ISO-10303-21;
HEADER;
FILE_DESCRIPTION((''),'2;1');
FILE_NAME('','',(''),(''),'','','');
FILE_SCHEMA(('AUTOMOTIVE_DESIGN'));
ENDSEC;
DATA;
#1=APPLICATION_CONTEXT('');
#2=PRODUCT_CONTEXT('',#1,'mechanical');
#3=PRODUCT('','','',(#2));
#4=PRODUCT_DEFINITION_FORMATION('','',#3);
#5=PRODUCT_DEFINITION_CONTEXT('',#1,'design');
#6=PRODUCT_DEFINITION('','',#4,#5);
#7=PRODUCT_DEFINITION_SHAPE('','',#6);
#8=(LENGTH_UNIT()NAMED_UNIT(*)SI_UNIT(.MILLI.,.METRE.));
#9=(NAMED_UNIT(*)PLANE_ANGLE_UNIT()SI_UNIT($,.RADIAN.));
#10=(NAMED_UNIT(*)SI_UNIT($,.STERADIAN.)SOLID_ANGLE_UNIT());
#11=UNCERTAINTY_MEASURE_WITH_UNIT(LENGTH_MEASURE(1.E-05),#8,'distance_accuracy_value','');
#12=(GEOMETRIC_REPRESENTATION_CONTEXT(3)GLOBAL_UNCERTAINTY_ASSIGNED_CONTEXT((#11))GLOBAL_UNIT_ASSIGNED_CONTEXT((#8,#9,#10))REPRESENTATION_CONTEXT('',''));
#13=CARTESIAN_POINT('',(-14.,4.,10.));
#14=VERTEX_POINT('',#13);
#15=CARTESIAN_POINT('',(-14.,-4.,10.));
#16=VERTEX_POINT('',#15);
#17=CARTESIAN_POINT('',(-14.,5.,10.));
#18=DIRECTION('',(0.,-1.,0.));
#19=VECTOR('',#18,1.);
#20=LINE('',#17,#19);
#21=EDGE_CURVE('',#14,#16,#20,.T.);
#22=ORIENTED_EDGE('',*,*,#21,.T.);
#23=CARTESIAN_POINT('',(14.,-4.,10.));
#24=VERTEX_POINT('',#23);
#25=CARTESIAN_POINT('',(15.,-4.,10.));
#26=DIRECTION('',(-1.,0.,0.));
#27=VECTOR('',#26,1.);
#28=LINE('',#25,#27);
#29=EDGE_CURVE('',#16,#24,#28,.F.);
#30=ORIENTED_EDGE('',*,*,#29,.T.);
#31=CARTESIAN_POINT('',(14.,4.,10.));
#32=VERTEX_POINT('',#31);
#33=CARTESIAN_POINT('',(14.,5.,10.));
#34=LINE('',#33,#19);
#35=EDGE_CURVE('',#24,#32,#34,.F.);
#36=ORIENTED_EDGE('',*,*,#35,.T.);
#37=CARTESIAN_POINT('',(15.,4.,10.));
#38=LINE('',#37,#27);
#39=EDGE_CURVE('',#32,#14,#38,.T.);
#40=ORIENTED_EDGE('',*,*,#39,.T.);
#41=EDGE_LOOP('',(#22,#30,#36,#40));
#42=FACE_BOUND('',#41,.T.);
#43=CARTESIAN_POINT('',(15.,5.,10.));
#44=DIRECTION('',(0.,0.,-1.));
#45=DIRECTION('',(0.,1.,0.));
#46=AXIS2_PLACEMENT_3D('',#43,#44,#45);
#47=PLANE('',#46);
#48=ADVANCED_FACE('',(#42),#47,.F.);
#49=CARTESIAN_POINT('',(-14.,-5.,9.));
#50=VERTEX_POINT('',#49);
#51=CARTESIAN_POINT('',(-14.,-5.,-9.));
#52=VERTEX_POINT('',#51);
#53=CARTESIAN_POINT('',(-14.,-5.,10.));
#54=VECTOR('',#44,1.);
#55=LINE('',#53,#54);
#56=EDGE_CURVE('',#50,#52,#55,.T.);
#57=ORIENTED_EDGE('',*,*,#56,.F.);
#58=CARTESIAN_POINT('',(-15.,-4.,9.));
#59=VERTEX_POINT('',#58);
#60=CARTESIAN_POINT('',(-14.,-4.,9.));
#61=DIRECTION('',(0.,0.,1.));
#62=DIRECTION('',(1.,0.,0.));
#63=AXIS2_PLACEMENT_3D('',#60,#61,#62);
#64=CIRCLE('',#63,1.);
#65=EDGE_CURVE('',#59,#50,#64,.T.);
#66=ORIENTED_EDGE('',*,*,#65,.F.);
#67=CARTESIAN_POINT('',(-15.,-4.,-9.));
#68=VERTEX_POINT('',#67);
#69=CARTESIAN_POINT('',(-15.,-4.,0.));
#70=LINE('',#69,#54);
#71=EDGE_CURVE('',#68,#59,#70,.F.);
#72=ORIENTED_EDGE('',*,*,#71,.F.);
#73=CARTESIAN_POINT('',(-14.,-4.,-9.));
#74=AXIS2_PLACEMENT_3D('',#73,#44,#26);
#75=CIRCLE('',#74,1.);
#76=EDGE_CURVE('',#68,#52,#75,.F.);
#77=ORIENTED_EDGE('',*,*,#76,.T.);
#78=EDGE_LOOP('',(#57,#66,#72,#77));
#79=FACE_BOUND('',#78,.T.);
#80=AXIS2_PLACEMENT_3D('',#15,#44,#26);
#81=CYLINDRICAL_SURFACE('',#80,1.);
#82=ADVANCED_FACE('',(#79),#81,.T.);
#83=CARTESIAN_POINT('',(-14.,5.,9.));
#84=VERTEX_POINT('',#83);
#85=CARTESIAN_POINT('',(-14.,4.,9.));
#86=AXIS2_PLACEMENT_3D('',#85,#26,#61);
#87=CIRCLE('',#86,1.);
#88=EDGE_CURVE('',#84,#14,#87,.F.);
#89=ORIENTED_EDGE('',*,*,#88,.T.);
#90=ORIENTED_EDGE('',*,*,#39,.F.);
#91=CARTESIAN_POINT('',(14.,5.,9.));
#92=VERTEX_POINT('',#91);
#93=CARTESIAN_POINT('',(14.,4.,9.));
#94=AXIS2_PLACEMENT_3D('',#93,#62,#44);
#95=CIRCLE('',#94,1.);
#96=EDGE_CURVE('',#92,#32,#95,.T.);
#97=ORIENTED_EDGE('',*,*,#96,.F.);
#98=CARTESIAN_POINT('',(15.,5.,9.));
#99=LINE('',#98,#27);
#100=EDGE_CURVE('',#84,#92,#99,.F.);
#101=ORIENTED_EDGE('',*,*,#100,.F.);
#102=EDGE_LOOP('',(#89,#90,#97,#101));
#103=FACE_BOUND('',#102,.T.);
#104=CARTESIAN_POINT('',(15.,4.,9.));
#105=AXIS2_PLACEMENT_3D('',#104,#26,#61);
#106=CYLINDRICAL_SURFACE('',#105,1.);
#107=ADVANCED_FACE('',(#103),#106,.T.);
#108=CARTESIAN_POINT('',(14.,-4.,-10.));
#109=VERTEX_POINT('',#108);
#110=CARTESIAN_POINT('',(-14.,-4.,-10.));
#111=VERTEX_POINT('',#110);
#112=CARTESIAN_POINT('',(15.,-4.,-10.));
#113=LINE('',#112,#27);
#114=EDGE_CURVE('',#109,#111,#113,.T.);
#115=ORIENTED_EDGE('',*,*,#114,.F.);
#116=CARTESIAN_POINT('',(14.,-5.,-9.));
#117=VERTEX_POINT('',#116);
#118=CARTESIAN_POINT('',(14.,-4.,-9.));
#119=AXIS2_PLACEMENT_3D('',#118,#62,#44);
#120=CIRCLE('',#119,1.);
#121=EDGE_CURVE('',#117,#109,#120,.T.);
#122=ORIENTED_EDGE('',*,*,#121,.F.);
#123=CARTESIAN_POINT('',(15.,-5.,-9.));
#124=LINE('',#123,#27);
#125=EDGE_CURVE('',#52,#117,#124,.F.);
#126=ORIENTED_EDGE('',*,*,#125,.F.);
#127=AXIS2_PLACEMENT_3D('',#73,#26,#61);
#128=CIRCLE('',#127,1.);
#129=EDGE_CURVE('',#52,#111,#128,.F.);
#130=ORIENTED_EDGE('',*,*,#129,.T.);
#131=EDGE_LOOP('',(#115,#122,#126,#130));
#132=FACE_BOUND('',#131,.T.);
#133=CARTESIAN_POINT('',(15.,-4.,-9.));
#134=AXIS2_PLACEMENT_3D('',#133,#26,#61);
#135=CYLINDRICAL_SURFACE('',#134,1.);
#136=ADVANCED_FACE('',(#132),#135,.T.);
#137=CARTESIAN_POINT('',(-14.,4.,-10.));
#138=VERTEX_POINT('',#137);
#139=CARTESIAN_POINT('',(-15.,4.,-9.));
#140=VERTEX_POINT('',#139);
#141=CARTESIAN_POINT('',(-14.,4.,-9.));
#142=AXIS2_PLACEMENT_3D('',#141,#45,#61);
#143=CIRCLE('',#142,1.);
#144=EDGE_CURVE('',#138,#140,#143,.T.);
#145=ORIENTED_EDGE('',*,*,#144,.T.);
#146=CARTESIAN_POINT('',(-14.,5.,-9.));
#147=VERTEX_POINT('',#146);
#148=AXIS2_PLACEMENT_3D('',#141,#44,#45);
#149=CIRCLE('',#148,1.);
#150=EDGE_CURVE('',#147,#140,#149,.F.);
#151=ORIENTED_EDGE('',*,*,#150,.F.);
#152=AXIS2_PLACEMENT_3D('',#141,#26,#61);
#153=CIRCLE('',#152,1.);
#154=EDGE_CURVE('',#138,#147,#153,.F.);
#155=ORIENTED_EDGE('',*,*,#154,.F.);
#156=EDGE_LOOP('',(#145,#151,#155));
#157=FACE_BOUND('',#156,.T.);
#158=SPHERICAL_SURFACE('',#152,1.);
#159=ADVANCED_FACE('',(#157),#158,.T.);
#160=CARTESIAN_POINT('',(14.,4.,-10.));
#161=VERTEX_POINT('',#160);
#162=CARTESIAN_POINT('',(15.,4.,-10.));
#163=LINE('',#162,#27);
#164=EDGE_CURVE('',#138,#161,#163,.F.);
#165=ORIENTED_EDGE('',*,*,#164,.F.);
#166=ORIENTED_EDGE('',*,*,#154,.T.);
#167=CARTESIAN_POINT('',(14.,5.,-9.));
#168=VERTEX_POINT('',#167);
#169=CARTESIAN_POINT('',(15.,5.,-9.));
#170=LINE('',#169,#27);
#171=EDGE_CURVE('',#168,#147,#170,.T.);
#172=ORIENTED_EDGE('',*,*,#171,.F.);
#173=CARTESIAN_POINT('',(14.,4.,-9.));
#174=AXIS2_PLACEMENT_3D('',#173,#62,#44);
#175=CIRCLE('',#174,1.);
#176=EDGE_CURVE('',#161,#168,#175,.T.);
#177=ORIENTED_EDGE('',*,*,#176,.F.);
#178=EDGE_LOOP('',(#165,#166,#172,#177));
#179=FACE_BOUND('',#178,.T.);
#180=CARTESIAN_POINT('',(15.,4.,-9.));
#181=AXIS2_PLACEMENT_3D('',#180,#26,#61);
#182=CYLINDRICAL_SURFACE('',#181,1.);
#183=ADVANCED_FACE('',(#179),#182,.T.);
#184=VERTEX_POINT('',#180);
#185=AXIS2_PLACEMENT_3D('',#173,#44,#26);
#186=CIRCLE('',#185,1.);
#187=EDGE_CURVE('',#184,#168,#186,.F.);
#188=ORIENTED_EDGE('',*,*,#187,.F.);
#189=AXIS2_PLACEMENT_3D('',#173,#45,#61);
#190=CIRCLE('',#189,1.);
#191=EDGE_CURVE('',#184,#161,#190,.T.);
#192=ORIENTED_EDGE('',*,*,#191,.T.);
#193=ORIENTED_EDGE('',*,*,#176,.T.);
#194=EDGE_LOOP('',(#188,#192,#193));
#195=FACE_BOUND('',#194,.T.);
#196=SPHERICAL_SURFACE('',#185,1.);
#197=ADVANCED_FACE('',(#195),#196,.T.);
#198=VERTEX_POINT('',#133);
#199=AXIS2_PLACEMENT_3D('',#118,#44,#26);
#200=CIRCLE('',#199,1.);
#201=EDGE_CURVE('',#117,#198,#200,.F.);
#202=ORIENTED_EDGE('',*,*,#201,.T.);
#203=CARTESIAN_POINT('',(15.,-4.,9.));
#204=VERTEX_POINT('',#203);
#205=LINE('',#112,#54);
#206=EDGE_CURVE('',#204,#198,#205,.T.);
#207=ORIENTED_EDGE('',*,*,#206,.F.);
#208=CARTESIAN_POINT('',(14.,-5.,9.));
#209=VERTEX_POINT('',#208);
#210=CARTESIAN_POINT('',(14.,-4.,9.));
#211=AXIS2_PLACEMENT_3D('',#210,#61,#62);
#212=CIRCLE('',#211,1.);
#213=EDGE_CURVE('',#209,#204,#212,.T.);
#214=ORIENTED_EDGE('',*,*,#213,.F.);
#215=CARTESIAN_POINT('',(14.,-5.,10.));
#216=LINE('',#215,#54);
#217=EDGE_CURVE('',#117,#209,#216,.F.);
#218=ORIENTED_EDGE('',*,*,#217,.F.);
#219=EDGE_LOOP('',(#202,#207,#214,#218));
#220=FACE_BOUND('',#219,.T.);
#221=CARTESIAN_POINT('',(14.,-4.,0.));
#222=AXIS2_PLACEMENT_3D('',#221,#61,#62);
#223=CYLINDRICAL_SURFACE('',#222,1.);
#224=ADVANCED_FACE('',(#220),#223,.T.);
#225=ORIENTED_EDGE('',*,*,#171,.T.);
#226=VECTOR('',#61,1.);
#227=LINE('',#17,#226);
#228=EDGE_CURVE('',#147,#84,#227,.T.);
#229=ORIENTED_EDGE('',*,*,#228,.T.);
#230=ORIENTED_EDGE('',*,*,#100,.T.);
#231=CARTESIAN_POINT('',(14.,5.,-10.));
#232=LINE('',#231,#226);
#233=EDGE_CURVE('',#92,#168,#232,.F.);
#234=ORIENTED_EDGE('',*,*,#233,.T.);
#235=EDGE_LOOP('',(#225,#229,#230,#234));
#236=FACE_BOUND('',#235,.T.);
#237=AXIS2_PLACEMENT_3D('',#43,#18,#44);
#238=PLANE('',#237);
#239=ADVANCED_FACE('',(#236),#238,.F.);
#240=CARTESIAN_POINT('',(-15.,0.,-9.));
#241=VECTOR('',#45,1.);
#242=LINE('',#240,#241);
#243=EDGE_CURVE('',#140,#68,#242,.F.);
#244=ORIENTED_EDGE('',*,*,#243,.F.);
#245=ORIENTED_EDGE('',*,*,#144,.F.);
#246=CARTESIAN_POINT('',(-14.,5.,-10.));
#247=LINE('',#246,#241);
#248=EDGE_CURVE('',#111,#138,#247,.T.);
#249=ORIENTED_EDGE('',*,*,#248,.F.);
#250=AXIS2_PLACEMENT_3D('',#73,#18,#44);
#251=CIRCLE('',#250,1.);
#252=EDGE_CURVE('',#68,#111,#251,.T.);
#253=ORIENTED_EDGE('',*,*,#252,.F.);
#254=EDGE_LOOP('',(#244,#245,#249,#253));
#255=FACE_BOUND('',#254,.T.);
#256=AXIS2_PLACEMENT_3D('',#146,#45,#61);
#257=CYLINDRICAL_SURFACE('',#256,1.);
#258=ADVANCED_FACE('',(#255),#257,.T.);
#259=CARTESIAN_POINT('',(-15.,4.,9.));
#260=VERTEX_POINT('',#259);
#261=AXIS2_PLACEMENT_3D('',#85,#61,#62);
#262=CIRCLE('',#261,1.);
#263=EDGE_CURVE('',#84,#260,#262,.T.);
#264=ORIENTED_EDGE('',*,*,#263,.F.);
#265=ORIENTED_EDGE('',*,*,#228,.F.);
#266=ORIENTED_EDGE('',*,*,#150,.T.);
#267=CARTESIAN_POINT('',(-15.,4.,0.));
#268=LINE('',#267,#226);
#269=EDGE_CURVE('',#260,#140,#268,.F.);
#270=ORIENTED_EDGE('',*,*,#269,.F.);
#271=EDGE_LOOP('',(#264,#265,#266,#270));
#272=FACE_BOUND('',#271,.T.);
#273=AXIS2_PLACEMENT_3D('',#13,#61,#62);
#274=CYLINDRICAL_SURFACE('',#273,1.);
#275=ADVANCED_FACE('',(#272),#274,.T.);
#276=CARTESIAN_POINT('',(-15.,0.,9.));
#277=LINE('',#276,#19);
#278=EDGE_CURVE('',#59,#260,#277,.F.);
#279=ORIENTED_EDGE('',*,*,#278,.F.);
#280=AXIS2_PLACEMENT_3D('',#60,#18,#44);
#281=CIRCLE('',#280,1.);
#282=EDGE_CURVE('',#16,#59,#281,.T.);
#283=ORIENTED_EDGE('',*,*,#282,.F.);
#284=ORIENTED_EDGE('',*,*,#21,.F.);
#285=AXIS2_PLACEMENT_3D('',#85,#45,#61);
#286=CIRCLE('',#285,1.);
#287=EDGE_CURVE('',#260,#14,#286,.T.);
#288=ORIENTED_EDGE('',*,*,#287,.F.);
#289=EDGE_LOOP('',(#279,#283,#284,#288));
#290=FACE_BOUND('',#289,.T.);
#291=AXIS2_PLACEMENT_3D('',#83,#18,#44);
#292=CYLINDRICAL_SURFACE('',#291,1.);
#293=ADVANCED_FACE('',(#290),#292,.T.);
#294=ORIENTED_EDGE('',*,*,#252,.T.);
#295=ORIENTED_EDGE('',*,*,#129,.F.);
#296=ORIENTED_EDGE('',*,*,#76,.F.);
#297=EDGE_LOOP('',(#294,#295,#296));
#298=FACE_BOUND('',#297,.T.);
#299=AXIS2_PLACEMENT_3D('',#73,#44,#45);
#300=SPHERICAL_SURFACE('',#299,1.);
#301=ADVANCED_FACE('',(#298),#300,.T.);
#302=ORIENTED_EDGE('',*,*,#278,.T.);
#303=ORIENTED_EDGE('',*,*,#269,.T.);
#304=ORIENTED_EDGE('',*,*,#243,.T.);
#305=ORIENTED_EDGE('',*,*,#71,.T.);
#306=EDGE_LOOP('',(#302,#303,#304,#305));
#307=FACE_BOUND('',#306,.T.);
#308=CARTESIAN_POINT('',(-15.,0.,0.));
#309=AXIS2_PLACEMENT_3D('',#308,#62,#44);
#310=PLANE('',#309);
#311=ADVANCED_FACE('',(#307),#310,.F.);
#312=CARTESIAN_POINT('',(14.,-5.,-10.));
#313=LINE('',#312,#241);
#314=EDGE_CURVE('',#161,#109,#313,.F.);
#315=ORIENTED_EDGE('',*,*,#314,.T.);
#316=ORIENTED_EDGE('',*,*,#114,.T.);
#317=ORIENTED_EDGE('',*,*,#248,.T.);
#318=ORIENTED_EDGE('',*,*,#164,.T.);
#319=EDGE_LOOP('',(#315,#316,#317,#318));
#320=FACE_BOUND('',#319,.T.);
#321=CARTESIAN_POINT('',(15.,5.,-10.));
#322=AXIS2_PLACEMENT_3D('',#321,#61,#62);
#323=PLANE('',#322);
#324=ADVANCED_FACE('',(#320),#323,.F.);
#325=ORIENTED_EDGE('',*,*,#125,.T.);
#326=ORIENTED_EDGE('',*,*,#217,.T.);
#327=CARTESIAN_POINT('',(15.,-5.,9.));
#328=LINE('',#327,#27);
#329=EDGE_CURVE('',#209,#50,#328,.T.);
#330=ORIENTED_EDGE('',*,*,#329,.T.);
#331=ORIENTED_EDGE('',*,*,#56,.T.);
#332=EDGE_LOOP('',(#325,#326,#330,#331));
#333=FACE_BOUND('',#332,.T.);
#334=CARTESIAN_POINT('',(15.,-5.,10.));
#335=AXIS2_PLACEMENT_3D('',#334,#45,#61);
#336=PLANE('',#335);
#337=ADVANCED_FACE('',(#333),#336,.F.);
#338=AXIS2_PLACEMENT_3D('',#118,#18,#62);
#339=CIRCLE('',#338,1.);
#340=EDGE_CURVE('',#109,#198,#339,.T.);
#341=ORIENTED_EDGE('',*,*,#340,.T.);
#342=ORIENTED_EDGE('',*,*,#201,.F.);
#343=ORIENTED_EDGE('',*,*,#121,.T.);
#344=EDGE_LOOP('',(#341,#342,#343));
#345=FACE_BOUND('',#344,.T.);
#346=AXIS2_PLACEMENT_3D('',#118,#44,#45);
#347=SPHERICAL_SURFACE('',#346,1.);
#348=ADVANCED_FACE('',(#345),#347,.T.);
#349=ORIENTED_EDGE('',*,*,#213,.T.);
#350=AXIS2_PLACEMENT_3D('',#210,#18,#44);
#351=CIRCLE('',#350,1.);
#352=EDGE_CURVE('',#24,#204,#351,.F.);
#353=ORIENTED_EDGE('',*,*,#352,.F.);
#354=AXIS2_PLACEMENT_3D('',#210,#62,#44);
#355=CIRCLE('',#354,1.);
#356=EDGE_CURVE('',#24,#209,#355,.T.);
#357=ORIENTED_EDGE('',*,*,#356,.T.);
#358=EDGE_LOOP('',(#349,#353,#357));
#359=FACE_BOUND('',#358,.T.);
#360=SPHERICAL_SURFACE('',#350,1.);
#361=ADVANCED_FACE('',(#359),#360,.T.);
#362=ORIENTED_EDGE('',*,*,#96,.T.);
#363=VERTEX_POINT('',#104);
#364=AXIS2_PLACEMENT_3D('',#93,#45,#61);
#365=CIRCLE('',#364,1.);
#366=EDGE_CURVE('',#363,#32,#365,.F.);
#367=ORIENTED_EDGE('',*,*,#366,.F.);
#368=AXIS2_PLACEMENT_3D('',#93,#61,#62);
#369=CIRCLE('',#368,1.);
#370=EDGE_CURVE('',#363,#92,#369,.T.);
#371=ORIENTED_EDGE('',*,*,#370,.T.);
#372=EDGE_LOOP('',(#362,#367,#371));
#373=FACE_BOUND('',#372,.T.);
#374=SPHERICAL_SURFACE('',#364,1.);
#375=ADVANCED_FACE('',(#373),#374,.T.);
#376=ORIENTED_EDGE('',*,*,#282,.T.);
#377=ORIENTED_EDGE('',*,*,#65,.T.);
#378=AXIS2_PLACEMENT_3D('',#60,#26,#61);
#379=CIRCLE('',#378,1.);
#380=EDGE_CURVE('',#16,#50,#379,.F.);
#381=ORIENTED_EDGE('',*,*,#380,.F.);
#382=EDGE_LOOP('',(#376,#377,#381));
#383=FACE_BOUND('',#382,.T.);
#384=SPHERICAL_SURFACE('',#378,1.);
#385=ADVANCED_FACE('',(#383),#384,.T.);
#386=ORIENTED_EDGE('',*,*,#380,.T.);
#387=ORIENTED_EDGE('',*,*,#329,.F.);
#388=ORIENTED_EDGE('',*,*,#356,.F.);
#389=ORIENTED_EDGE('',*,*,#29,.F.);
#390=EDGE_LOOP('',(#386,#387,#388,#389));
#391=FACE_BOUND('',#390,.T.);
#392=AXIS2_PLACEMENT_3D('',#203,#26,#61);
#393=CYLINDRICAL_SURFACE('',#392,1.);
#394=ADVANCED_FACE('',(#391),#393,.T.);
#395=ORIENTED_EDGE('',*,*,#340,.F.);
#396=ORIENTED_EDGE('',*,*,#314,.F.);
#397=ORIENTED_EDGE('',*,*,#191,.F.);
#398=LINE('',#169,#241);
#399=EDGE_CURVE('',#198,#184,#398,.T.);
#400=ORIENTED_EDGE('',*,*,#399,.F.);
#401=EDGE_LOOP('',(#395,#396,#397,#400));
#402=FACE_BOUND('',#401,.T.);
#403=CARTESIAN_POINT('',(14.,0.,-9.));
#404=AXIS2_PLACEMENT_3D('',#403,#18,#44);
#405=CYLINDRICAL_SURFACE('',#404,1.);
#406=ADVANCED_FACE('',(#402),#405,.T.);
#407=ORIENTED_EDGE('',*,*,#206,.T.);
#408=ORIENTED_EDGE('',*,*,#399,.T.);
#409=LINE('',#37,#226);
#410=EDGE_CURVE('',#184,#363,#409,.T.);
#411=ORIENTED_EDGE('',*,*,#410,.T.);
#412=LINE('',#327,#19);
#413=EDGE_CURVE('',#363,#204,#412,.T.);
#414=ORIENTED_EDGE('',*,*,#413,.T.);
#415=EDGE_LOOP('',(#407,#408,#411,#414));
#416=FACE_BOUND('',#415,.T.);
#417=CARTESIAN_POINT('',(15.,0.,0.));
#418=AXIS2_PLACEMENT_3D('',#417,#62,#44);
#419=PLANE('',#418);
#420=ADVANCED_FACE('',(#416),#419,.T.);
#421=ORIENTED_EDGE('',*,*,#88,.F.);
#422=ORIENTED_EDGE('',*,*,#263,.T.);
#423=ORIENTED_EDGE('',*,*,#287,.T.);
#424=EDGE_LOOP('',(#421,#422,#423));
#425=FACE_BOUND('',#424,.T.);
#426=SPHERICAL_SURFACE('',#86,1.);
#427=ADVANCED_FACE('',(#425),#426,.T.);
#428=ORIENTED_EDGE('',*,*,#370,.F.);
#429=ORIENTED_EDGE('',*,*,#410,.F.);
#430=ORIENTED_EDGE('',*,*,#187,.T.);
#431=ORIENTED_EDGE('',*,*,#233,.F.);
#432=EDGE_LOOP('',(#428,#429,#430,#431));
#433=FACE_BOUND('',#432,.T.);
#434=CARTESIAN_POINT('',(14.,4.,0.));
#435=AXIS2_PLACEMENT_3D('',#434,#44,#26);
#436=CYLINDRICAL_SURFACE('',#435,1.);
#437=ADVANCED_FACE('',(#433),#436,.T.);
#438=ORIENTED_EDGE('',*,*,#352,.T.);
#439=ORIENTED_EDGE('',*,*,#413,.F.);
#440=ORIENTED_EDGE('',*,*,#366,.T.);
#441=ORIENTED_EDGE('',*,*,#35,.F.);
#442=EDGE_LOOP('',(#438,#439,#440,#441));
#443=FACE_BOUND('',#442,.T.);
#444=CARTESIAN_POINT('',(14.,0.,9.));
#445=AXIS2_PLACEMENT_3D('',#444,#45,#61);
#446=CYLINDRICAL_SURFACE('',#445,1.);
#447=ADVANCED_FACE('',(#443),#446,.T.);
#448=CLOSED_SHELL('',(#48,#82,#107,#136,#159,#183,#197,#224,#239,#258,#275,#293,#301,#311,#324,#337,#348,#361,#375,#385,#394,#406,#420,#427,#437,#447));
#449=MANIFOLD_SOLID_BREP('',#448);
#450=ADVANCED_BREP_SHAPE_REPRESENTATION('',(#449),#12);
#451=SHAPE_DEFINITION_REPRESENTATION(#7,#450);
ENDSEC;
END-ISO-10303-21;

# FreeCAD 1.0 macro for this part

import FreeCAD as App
import Part
import Sketcher
Q = App.Units.Quantity

doc = App.newDocument("Part")
params = doc.addObject("Spreadsheet::Sheet", "Params")
for row, (alias, value) in enumerate([
    ("sketch1_width", "10 mm"),
    ("sketch1_height", "20 mm"),
    ("pad1_length", "30 mm"),
    ("fillet_radius", "1 mm"),
], start=1):
    params.set(f"A{row}", alias)
    params.set(f"B{row}", "=" + value)
    params.setAlias(f"B{row}", alias)

body = doc.addObject("PartDesign::Body", "Body")

# Sketch on YZ plane
sketch1 = body.newObject("Sketcher::SketchObject", "Sketch")
sketch1.AttachmentSupport = (doc.getObject("YZ_Plane"), [""])
sketch1.MapMode = "FlatFace"
sketch1.addGeometry([
    Part.LineSegment(App.Vector(5, 10, 0), App.Vector(-5, 10, 0)),
    Part.LineSegment(App.Vector(-5, 10, 0), App.Vector(-5, -10, 0)),
    Part.LineSegment(App.Vector(-5, -10, 0), App.Vector(5, -10, 0)),
    Part.LineSegment(App.Vector(5, -10, 0), App.Vector(5, 10, 0)),
], False)
sketch1.addConstraint([
    Sketcher.Constraint("Coincident", 0, 2, 1, 1),
    Sketcher.Constraint("Coincident", 1, 2, 2, 1),
    Sketcher.Constraint("Coincident", 2, 2, 3, 1),
    Sketcher.Constraint("Coincident", 3, 2, 0, 1),
    Sketcher.Constraint("Horizontal", 0),
    Sketcher.Constraint("Vertical", 1),
    Sketcher.Constraint("Horizontal", 2),
    Sketcher.Constraint("Vertical", 3),
    Sketcher.Constraint("Symmetric", 0, 2, 2, 2, -1, 1),
    Sketcher.Constraint("DistanceX", 0, 2, 0, 1, Q("10 mm")),
    Sketcher.Constraint("DistanceY", 1, 2, 1, 1, Q("20 mm")),
])
sketch1.setExpression("Constraints[9]", "Params.sketch1_width")
sketch1.setExpression("Constraints[10]", "Params.sketch1_height")
pad1 = body.newObject("PartDesign::Pad", "Pad")
pad1.Profile = sketch1
pad1.setExpression("Length", "Params.pad1_length")
pad1.Midplane = True
doc.recompute()

fillet = body.newObject("PartDesign::Fillet", "Fillet")
fillet.Base = (pad1, ["Edge1"])
fillet.UseAllEdges = True
fillet.setExpression("Radius", "Params.fillet_radius")

doc.recompute()
